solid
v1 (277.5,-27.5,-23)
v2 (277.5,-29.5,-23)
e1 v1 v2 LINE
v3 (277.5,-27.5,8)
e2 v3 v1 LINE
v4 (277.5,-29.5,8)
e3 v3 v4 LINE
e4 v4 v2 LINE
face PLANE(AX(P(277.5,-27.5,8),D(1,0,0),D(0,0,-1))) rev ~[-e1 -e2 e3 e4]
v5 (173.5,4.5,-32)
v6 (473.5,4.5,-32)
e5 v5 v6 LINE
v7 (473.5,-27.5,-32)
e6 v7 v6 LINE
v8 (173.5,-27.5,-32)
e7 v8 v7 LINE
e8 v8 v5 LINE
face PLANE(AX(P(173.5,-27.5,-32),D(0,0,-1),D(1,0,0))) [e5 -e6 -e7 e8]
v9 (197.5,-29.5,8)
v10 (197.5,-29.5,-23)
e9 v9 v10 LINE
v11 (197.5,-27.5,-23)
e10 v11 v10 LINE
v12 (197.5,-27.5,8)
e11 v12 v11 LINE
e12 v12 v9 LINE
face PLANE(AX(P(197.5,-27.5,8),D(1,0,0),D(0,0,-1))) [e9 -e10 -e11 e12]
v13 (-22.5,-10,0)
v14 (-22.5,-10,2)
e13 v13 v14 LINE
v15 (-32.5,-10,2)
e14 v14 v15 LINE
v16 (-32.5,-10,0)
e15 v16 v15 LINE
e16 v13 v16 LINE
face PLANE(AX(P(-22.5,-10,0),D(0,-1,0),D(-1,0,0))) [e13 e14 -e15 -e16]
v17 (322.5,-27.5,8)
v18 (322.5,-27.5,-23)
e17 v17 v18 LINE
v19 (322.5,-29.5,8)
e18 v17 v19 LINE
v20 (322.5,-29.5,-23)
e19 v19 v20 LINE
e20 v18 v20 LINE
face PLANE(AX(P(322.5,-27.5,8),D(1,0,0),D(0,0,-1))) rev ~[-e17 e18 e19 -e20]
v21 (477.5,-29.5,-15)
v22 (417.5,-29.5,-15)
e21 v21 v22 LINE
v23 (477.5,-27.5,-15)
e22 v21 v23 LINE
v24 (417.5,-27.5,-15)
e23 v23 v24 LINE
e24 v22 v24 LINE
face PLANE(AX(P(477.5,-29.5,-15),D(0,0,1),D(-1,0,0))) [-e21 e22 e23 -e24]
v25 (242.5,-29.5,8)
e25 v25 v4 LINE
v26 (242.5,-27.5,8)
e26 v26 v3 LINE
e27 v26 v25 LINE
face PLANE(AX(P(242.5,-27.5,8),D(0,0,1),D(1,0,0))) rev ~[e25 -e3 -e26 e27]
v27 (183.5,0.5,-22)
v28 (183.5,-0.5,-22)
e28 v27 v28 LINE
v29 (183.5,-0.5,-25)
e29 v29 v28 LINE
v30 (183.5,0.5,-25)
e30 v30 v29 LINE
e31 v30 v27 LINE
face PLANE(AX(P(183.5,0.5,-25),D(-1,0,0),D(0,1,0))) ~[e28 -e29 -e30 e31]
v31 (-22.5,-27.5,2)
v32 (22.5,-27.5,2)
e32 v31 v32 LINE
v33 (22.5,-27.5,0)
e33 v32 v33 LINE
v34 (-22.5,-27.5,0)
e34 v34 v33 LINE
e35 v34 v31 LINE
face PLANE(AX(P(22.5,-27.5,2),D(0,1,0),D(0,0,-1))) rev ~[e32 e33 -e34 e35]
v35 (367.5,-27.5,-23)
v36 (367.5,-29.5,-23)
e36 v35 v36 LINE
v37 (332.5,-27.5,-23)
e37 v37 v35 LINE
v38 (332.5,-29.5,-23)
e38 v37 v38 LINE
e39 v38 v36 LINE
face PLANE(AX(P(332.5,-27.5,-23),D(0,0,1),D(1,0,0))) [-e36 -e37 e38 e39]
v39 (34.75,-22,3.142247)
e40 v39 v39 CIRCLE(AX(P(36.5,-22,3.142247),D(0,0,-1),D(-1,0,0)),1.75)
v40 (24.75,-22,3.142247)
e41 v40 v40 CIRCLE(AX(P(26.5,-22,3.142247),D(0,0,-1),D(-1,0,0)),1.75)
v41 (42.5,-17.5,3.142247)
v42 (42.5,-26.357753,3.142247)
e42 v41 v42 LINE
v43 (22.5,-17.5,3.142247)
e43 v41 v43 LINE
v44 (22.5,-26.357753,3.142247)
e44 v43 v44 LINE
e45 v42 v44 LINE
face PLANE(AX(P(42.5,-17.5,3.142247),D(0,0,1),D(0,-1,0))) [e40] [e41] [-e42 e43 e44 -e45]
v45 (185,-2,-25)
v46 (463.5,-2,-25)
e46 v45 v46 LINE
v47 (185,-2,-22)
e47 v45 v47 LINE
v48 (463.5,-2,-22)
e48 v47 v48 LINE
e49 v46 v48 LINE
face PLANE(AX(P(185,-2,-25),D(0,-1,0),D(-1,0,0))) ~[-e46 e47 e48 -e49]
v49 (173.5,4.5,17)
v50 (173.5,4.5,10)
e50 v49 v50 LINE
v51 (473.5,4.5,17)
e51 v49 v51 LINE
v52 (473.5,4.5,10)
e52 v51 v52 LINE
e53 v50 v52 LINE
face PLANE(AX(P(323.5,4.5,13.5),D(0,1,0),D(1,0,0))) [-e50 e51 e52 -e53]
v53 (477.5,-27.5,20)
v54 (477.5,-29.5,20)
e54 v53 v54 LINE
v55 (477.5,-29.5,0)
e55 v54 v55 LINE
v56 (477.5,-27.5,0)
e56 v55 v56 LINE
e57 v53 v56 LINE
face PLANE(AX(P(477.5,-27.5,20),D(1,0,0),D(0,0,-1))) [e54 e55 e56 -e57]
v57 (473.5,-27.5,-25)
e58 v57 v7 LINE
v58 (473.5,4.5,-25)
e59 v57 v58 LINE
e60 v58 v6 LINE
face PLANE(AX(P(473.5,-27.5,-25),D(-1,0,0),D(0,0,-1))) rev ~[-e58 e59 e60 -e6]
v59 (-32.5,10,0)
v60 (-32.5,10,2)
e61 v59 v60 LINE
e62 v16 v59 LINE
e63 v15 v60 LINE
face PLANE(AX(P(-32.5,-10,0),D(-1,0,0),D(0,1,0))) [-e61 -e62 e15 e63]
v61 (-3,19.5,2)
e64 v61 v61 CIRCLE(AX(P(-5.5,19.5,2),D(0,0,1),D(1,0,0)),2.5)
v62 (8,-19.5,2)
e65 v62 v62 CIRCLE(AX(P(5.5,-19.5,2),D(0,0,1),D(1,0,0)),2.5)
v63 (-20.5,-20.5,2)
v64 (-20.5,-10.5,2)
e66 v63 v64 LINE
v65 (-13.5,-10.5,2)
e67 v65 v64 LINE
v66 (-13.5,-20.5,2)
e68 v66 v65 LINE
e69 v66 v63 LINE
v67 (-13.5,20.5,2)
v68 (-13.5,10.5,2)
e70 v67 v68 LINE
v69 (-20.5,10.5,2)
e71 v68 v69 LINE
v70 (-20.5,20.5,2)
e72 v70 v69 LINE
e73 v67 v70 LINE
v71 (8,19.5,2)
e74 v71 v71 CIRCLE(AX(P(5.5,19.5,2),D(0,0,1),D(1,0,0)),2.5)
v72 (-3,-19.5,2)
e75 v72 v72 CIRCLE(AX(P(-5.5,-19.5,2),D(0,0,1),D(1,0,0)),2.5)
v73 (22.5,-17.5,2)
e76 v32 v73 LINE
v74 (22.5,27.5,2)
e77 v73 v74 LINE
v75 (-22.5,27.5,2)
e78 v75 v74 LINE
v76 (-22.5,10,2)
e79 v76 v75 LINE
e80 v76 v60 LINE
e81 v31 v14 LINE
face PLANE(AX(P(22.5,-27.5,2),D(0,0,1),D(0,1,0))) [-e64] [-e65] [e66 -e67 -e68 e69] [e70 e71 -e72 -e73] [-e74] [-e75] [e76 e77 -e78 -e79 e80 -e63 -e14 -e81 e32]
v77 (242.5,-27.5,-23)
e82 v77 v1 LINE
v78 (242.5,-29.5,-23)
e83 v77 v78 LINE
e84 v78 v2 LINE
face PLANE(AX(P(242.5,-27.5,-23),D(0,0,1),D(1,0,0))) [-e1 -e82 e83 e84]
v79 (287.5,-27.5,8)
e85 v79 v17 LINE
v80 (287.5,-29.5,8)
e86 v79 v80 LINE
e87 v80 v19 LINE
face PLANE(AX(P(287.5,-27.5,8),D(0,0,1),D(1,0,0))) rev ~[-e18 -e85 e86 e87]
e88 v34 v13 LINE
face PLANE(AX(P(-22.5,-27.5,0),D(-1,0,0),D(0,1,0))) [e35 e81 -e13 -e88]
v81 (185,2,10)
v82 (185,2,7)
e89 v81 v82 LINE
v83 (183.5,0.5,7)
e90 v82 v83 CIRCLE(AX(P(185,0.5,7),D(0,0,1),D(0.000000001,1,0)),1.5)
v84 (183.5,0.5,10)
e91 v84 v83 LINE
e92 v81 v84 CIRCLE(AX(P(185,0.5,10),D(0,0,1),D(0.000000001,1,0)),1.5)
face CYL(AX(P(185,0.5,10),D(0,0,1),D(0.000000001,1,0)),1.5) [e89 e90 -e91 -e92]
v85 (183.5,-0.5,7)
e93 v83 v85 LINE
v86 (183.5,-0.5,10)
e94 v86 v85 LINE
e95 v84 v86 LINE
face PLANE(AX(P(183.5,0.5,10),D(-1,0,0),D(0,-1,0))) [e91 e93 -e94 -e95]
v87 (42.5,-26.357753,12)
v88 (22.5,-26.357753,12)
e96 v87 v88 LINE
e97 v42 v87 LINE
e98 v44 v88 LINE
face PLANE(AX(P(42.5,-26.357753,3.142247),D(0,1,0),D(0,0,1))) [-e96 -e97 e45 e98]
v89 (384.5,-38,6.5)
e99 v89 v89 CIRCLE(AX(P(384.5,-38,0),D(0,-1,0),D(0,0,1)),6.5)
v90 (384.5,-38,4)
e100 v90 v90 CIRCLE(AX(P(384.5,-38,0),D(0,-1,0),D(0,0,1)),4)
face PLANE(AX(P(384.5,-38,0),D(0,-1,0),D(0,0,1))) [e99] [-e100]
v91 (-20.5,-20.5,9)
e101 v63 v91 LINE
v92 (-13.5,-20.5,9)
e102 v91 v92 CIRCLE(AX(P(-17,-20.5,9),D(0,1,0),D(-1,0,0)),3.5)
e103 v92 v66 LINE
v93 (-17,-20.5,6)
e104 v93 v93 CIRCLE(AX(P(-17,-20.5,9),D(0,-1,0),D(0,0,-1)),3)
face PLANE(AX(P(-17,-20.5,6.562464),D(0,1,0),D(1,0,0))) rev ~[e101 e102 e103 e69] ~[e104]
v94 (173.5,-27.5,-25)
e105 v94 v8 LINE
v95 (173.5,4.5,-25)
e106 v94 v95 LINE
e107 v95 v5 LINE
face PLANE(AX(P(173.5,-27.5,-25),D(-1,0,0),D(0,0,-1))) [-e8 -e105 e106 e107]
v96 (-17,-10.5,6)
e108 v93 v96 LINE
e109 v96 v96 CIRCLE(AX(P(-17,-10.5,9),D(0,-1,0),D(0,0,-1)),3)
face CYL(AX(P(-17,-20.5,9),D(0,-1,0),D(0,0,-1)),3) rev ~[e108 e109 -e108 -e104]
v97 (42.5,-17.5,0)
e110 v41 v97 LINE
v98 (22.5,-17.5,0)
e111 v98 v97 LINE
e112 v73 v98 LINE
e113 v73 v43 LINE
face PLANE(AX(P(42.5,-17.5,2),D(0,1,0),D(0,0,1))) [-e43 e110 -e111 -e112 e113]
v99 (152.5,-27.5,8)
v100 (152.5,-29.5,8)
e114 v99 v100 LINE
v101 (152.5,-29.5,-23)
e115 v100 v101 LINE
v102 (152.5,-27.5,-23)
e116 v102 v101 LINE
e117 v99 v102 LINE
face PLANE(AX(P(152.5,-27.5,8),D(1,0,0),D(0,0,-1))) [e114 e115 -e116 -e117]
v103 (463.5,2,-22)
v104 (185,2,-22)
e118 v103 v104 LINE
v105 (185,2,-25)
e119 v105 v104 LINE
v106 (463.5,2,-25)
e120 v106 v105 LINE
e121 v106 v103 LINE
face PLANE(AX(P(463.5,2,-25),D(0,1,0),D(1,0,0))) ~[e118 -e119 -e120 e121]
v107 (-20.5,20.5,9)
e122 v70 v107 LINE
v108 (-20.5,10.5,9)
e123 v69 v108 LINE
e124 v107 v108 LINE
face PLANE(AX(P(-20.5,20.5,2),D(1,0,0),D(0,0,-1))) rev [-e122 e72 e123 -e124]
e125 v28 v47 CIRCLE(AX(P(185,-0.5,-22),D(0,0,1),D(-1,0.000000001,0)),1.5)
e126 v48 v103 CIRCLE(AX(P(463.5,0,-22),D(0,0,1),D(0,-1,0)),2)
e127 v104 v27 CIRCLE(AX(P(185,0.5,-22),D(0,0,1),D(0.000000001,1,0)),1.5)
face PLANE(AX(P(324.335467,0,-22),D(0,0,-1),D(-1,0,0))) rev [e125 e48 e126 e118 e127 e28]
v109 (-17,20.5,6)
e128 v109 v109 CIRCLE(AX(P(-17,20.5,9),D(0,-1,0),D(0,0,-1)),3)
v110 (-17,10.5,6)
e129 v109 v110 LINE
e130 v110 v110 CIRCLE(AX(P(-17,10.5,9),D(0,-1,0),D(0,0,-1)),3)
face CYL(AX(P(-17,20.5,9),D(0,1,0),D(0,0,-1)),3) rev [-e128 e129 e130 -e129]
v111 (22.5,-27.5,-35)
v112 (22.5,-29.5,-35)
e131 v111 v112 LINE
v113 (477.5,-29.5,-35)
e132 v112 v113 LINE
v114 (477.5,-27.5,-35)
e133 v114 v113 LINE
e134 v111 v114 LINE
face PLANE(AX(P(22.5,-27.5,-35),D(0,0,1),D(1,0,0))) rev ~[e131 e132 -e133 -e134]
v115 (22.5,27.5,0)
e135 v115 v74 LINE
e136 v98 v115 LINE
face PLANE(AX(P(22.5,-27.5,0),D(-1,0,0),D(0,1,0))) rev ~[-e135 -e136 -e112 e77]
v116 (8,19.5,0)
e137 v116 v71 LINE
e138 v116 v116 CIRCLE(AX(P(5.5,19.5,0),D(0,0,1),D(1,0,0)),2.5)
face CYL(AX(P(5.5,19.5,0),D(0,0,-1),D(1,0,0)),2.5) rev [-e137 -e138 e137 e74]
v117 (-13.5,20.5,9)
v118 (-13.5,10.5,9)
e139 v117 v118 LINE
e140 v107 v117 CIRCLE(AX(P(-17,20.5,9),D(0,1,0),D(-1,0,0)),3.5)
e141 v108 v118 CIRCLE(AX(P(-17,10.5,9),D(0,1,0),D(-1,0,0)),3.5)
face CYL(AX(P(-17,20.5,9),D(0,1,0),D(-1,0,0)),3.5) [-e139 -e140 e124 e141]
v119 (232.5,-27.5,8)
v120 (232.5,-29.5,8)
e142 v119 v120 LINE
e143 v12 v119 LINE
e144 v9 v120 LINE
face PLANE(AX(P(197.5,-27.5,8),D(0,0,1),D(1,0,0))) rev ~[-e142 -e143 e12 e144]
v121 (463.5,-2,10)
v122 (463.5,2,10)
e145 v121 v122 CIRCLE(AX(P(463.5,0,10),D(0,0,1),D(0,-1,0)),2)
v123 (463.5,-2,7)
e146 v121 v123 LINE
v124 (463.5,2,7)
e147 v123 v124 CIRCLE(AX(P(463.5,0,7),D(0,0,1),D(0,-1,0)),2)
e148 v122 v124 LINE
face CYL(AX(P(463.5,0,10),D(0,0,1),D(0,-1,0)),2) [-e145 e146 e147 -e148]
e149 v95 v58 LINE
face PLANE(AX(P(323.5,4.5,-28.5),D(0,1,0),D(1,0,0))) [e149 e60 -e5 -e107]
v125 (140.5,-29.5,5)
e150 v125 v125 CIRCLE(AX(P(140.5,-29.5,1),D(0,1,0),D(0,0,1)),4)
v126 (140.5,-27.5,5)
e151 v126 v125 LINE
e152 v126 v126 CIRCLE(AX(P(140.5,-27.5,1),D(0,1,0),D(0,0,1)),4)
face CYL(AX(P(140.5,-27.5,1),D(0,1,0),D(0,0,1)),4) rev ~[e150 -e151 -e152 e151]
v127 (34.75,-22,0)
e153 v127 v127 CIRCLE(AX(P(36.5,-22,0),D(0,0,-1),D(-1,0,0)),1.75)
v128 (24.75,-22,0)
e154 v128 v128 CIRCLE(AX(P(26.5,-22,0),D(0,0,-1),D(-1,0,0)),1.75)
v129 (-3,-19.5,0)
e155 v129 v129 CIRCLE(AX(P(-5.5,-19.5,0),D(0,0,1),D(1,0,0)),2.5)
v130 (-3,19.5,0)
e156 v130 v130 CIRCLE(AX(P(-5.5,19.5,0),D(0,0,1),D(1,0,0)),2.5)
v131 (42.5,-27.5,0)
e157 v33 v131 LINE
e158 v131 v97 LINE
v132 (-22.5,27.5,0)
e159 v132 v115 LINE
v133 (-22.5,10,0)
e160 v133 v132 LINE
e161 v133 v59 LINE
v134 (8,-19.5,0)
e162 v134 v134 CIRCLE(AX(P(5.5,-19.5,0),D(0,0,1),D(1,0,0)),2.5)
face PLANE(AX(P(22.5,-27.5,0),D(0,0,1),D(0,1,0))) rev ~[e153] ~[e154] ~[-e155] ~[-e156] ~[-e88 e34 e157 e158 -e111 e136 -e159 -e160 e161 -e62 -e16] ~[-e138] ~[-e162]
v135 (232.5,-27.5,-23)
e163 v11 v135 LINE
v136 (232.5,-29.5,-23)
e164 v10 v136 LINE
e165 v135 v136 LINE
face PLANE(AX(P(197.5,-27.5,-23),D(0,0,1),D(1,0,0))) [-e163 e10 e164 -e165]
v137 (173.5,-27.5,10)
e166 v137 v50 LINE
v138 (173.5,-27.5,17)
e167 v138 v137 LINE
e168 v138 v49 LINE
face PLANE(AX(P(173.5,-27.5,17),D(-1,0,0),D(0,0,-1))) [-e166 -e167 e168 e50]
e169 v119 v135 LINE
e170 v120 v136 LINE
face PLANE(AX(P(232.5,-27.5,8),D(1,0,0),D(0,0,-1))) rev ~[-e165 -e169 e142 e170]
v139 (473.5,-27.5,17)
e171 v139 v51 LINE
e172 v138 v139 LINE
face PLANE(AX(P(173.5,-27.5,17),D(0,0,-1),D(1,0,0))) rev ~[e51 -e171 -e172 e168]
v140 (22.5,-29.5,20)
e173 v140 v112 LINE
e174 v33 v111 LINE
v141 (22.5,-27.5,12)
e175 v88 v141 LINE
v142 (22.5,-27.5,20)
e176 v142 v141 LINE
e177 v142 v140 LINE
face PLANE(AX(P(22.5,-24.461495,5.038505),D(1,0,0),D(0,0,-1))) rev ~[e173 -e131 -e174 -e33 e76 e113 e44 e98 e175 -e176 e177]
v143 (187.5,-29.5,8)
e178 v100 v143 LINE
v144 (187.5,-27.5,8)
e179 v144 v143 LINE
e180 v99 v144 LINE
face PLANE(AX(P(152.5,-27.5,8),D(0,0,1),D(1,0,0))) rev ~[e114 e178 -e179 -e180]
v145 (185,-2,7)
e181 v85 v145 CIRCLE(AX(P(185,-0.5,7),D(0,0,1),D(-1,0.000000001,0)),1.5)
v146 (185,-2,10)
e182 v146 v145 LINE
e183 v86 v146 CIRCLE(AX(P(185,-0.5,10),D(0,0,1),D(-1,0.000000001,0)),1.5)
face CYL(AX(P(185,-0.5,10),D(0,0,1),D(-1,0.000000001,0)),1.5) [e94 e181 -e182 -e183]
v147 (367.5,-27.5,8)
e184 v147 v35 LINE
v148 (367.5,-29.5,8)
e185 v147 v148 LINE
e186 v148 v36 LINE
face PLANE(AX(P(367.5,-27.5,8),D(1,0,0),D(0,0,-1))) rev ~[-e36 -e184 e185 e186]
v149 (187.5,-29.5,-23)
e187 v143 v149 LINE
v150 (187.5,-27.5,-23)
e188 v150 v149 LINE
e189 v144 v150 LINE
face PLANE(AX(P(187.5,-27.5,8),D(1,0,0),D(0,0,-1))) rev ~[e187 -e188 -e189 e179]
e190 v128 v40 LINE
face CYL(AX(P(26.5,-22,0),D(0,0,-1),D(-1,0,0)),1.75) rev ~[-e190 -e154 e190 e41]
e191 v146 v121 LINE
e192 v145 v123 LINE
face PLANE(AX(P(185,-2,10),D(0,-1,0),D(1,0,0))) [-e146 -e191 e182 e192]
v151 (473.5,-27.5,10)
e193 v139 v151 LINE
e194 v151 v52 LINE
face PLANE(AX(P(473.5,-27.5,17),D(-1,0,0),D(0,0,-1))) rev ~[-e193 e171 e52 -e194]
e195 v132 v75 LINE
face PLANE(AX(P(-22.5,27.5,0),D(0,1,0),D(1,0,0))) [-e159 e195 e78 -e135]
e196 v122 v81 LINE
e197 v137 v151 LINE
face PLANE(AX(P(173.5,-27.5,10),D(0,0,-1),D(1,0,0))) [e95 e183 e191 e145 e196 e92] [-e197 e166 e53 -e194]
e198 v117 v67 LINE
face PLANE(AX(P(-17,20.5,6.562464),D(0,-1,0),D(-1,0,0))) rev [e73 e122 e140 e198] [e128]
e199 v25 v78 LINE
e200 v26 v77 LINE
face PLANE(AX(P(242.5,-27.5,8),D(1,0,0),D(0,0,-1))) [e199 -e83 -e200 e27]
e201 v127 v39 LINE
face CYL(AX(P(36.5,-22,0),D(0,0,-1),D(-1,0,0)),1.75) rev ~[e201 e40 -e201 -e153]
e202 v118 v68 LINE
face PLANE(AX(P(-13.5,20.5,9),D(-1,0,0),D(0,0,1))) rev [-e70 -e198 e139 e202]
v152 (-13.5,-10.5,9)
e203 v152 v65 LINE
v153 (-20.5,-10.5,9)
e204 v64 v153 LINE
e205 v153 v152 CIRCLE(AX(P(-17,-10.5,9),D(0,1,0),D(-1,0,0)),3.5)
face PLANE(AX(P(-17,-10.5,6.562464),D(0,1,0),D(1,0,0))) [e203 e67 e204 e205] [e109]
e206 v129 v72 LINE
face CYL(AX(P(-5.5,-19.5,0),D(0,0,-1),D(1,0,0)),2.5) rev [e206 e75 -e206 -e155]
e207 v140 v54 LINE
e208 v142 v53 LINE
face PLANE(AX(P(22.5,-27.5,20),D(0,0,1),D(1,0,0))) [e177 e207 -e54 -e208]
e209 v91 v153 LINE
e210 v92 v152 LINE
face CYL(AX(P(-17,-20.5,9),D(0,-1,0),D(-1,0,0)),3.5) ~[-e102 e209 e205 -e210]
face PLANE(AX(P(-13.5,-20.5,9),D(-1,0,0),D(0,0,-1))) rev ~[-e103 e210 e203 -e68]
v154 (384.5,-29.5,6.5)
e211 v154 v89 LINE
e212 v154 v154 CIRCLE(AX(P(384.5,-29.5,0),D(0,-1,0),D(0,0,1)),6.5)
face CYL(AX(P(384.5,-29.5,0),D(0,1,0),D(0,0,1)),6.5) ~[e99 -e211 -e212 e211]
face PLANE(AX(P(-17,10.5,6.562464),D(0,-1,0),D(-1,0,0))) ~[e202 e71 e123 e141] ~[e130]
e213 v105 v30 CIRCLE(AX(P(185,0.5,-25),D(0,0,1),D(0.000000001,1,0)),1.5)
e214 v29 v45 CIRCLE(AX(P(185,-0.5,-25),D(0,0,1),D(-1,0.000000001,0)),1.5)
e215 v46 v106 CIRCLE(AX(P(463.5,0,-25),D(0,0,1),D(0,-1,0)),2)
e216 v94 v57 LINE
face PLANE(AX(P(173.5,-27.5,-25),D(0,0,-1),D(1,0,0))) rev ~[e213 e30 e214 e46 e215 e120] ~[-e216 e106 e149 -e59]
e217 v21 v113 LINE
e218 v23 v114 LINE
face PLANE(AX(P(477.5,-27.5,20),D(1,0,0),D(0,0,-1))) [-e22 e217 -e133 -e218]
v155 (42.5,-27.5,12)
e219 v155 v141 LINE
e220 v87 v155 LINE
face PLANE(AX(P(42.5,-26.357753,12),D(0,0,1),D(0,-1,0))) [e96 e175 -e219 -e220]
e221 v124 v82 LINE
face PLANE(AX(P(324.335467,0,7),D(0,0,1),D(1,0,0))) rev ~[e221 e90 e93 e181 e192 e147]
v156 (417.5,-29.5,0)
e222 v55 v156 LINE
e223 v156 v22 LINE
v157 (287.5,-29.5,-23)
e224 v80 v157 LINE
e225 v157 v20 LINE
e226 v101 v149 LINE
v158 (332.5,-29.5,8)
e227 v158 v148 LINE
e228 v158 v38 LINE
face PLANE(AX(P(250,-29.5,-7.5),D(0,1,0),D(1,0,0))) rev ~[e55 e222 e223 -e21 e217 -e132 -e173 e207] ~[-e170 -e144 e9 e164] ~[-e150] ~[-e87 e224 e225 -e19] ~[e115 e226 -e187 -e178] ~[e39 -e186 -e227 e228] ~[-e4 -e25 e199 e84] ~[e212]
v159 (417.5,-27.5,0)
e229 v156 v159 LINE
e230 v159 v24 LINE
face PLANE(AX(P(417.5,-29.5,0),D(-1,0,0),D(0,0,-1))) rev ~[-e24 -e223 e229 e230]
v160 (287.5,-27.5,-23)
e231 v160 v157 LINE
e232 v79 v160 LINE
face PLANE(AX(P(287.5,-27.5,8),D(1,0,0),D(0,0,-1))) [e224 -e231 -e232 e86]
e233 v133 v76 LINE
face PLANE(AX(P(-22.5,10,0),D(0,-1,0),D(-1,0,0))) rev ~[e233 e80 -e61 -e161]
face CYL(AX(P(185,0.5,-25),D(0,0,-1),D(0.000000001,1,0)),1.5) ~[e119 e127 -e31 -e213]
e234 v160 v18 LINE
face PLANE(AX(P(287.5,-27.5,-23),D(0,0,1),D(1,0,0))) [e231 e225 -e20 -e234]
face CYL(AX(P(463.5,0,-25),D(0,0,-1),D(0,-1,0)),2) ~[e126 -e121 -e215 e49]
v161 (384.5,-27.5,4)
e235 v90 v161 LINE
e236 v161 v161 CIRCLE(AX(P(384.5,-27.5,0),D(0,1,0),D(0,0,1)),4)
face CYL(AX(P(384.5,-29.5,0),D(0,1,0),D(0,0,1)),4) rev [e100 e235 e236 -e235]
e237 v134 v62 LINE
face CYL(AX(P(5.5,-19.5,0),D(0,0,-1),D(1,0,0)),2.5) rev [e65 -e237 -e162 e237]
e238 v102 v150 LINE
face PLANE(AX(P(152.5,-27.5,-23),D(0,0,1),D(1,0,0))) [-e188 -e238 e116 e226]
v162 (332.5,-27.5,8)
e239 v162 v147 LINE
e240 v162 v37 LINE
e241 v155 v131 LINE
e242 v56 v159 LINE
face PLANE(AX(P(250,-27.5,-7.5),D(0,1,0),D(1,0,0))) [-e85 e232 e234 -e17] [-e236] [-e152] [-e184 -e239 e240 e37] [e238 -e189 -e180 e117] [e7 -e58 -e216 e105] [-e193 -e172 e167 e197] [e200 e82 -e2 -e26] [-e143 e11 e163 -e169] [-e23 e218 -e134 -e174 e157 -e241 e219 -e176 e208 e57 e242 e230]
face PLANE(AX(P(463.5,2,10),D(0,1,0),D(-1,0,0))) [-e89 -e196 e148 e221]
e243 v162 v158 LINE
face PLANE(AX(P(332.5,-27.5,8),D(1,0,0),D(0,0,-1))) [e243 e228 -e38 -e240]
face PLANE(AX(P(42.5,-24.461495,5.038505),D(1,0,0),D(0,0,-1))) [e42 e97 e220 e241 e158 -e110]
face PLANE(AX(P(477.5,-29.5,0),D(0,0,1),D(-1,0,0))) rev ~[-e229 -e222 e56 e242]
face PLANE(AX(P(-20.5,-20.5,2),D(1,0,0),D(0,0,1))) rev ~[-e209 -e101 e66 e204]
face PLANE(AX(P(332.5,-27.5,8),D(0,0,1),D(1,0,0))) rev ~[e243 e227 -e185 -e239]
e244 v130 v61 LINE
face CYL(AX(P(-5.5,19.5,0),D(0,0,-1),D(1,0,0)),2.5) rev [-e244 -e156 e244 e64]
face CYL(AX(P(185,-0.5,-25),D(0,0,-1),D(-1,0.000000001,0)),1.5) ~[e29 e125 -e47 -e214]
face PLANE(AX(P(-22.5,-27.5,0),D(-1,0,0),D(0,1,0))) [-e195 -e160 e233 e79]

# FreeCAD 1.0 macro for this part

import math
import FreeCAD as App
import Part
import Sketcher

V = App.Vector


def add_polygon(sketch, points):
    """Adds a closed chain of lines whose ends are joined by coincident constraints."""
    first, n = sketch.GeometryCount, len(points)
    for a, b in zip(points, points[1:] + points[:1]):
        sketch.addGeometry(Part.LineSegment(App.Vector(*a, 0), App.Vector(*b, 0)), False)
    for i in range(n):
        sketch.addConstraint(Sketcher.Constraint("Coincident", first + i, 2, first + (i + 1) % n, 1))

doc = App.newDocument("Part")
params = doc.addObject("Spreadsheet::Sheet", "Params")
for row, (alias, value) in enumerate([
    ("sketch1_diameter", "5 mm"),
    ("sketch1_width", "45 mm"),
    ("sketch1_height", "55 mm"),
    ("pad1_length", "2 mm"),
    ("sketch2_width", "10 mm"),
    ("sketch2_height", "20 mm"),
    ("pad2_length", "2 mm"),
    ("sketch3_diameter", "6 mm"),
    ("sketch3_radius", "3.5 mm"),
    ("pad3_length", "10 mm"),
    ("sketch4_width", "10 mm"),
    ("sketch4_height", "2 mm"),
    ("pad4_length", "20 mm"),
    ("sketch5_width", "455 mm"),
    ("sketch5_height", "55 mm"),
    ("pad5_length", "2 mm"),
    ("sketch6_width", "60 mm"),
    ("sketch6_height", "15 mm"),
    ("pocket1_length", "2 mm"),
    ("sketch7_width", "10 mm"),
    ("pad6_length", "20 mm"),
    ("sketch8_diameter", "3.5 mm"),
    ("sketch9_width", "300 mm"),
    ("sketch9_height", "7 mm"),
    ("pad7_length", "32 mm"),
    ("sketch10_radius", "2 mm"),
    ("sketch10_radius2", "1.5 mm"),
    ("sketch10_width", "278.5 mm"),
    ("pad8_length", "3 mm"),
    ("sketch11_diameter", "8 mm"),
    ("pocket3_length", "10 mm"),
    ("sketch12_width", "35 mm"),
    ("sketch12_height", "31 mm"),
    ("pocket4_length", "10 mm"),
    ("sketch13_diameter", "8 mm"),
    ("pocket5_length", "10 mm"),
    ("sketch14_diameter", "13 mm"),
    ("sketch14_diameter2", "8 mm"),
    ("pad9_length", "8.5 mm"),
], start=1):
    params.set(f"A{row}", alias)
    params.set(f"B{row}", "=" + value)
    params.setAlias(f"B{row}", alias)

body = doc.addObject("PartDesign::Body", "Body")

# Sketch on XY plane
sketch1 = doc.addObject("Sketcher::SketchObject", "Sketch")
body.addObject(sketch1)
sketch1.AttachmentSupport = (doc.XY_Plane, [""])
sketch1.MapMode = "FlatFace"
add_polygon(sketch1, [(-22.5, 27.5), (-22.5, -27.5), (22.5, -27.5), (22.5, 27.5)])  # lines 0-3
sketch1.addGeometry(Part.Circle(V(-5.5, -19.5, 0), V(0, 0, 1), 2.5), False)  # 4
sketch1.addGeometry(Part.Circle(V(5.5, -19.5, 0), V(0, 0, 1), 2.5), False)  # 5
sketch1.addGeometry(Part.Circle(V(-5.5, 19.5, 0), V(0, 0, 1), 2.5), False)  # 6
sketch1.addGeometry(Part.Circle(V(5.5, 19.5, 0), V(0, 0, 1), 2.5), False)  # 7
sketch1.addConstraint([
    Sketcher.Constraint("Vertical", 0),
    Sketcher.Constraint("Horizontal", 1),
    Sketcher.Constraint("Vertical", 2),
    Sketcher.Constraint("Horizontal", 3),
    Sketcher.Constraint("Equal", 4, 5),
    Sketcher.Constraint("Equal", 5, 6),
    Sketcher.Constraint("Equal", 6, 7),
    Sketcher.Constraint("Symmetric", 5, 3, 6, 3, -1, 1),
    Sketcher.Constraint("Symmetric", 4, 3, 7, 3, -1, 1),
    Sketcher.Constraint("Symmetric", 0, 2, 2, 2, -1, 1),
    Sketcher.Constraint("Symmetric", 4, 3, 5, 3, -2),
    Sketcher.Constraint("Diameter", 4, 5.0),
    Sketcher.Constraint("DistanceX", 1, 1, 1, 2, 45.0),
    Sketcher.Constraint("DistanceY", 0, 2, 0, 1, 55.0),
    Sketcher.Constraint("DistanceX", 4, 3, 5, 3, 11.0),
    Sketcher.Constraint("DistanceY", 4, 3, 6, 3, 39.0),
])
sketch1.setExpression("Constraints[15]", "Params.sketch1_diameter")
sketch1.setExpression("Constraints[16]", "Params.sketch1_width")
sketch1.setExpression("Constraints[17]", "Params.sketch1_height")
pad1 = doc.addObject("PartDesign::Pad", "Pad")
body.addObject(pad1)
pad1.Profile = sketch1
pad1.setExpression("Length", "Params.pad1_length")

# Sketch on XY plane
sketch2 = doc.addObject("Sketcher::SketchObject", "Sketch001")
body.addObject(sketch2)
sketch2.AttachmentSupport = (doc.XY_Plane, [""])
sketch2.MapMode = "FlatFace"
add_polygon(sketch2, [(-22, 10), (-22, -10), (-32, -10), (-32, 10)])  # lines 0-3
sketch2.addConstraint([
    Sketcher.Constraint("Vertical", 0),
    Sketcher.Constraint("Horizontal", 1),
    Sketcher.Constraint("Vertical", 2),
    Sketcher.Constraint("Horizontal", 3),
    Sketcher.Constraint("DistanceX", 1, 2, 1, 1, 10.0),
    Sketcher.Constraint("DistanceY", 0, 2, 0, 1, 20.0),
    Sketcher.Constraint("DistanceY", 0, 2, -1, 1, 10.0),
    Sketcher.Constraint("DistanceX", 0, 2, -1, 1, 22.5),
])
sketch2.setExpression("Constraints[8]", "Params.sketch2_width")
sketch2.setExpression("Constraints[9]", "Params.sketch2_height")
pad2 = doc.addObject("PartDesign::Pad", "Pad001")
body.addObject(pad2)
pad2.Profile = sketch2
pad2.setExpression("Length", "Params.pad2_length")

# Sketch on XZ plane
sketch3 = doc.addObject("Sketcher::SketchObject", "Sketch002")
body.addObject(sketch3)
sketch3.AttachmentSupport = (doc.XZ_Plane, [""])
sketch3.MapMode = "FlatFace"
sketch3.AttachmentOffset = App.Placement(V(0, 0, 20.5), App.Rotation())
sketch3.addGeometry([
    Part.LineSegment(V(-20.5, 2, 0), V(-13.5, 2, 0)),  # 0
    Part.LineSegment(V(-13.5, 2, 0), V(-13.5, 9, 0)),  # 1
    Part.ArcOfCircle(Part.Circle(V(-17, 9, 0), V(0, 0, 1), 3.5), math.radians(0), math.radians(180)),  # 2
    Part.LineSegment(V(-20.5, 9, 0), V(-20.5, 2, 0)),  # 3
    Part.Circle(V(-17, 9, 0), V(0, 0, 1), 3),  # 4
], False)
sketch3.addConstraint([
    Sketcher.Constraint("Coincident", 0, 2, 1, 1),
    Sketcher.Constraint("Tangent", 1, 2, 2, 1),
    Sketcher.Constraint("Tangent", 2, 2, 3, 1),
    Sketcher.Constraint("Coincident", 3, 2, 0, 1),
    Sketcher.Constraint("Horizontal", 0),
    Sketcher.Constraint("Vertical", 1),
    Sketcher.Constraint("Vertical", 3),
    Sketcher.Constraint("Coincident", 4, 3, 2, 3),
    Sketcher.Constraint("Equal", 0, 1),
    Sketcher.Constraint("Diameter", 4, 6.0),
    Sketcher.Constraint("Radius", 2, 3.5),
    Sketcher.Constraint("DistanceX", 2, 3, -1, 1, 17.0),
    Sketcher.Constraint("DistanceY", -1, 1, 2, 3, 9.0),
])
sketch3.setExpression("Constraints[9]", "Params.sketch3_diameter")
sketch3.setExpression("Constraints[10]", "Params.sketch3_radius")
pad3 = doc.addObject("PartDesign::Pad", "Pad002")
body.addObject(pad3)
pad3.Profile = sketch3
pad3.setExpression("Length", "Params.pad3_length")
pad3.Reversed = True
doc.recompute()

mirrored = doc.addObject("PartDesign::Mirrored", "Mirrored")
body.addObject(mirrored)
mirrored.Originals = [pad3]
mirrored.MirrorPlane = (doc.XZ_Plane, [""])
body.Tip = mirrored

# Sketch on YZ plane
sketch4 = doc.addObject("Sketcher::SketchObject", "Sketch003")
body.addObject(sketch4)
sketch4.AttachmentSupport = (doc.YZ_Plane, [""])
sketch4.MapMode = "FlatFace"
sketch4.AttachmentOffset = App.Placement(V(0, 0, 22.5), App.Rotation())
add_polygon(sketch4, [(-17.5, 2), (-27.5, 2), (-27.5, 0), (-17.5, 0)])  # lines 0-3
sketch4.addConstraint([
    Sketcher.Constraint("Horizontal", 0),
    Sketcher.Constraint("Vertical", 1),
    Sketcher.Constraint("Horizontal", 2),
    Sketcher.Constraint("Vertical", 3),
    Sketcher.Constraint("PointOnObject", 1, 2, -1),
    Sketcher.Constraint("DistanceX", 0, 2, 0, 1, 10.0),
    Sketcher.Constraint("DistanceY", 1, 2, 1, 1, 2.0),
    Sketcher.Constraint("DistanceX", 0, 2, -1, 1, 27.5),
])
sketch4.setExpression("Constraints[9]", "Params.sketch4_width")
sketch4.setExpression("Constraints[10]", "Params.sketch4_height")
pad4 = doc.addObject("PartDesign::Pad", "Pad003")
body.addObject(pad4)
pad4.Profile = sketch4
pad4.setExpression("Length", "Params.pad4_length")

# Sketch on XZ plane
sketch5 = doc.addObject("Sketcher::SketchObject", "Sketch004")
body.addObject(sketch5)
sketch5.AttachmentSupport = (doc.XZ_Plane, [""])
sketch5.MapMode = "FlatFace"
sketch5.AttachmentOffset = App.Placement(V(0, 0, 27.5), App.Rotation())
add_polygon(sketch5, [(22, -35), (22, 20), (478, 20), (478, -35)])  # lines 0-3
sketch5.addConstraint([
    Sketcher.Constraint("Vertical", 0),
    Sketcher.Constraint("Horizontal", 1),
    Sketcher.Constraint("Vertical", 2),
    Sketcher.Constraint("Horizontal", 3),
    Sketcher.Constraint("DistanceX", 1, 1, 1, 2, 455.0),
    Sketcher.Constraint("DistanceY", 0, 1, 0, 2, 55.0),
    Sketcher.Constraint("DistanceY", -1, 1, 0, 2, 20.0),
    Sketcher.Constraint("DistanceX", -1, 1, 0, 2, 22.5),
])
sketch5.setExpression("Constraints[8]", "Params.sketch5_width")
sketch5.setExpression("Constraints[9]", "Params.sketch5_height")
pad5 = doc.addObject("PartDesign::Pad", "Pad004")
body.addObject(pad5)
pad5.Profile = sketch5
pad5.setExpression("Length", "Params.pad5_length")

# Sketch on XZ plane
sketch6 = doc.addObject("Sketcher::SketchObject", "Sketch005")
body.addObject(sketch6)
sketch6.AttachmentSupport = (doc.XZ_Plane, [""])
sketch6.MapMode = "FlatFace"
sketch6.AttachmentOffset = App.Placement(V(0, 0, 29.5), App.Rotation())
add_polygon(sketch6, [(478, -15), (478, 0), (418, 0), (418, -15)])  # lines 0-3
sketch6.addConstraint([
    Sketcher.Constraint("Vertical", 0),
    Sketcher.Constraint("Horizontal", 1),
    Sketcher.Constraint("Vertical", 2),
    Sketcher.Constraint("Horizontal", 3),
    Sketcher.Constraint("PointOnObject", 0, 2, -1),
    Sketcher.Constraint("DistanceX", 1, 2, 1, 1, 60.0),
    Sketcher.Constraint("DistanceY", 0, 1, 0, 2, 15.0),
    Sketcher.Constraint("DistanceX", -1, 1, 0, 2, 477.5),
])
sketch6.setExpression("Constraints[9]", "Params.sketch6_width")
sketch6.setExpression("Constraints[10]", "Params.sketch6_height")
pocket1 = doc.addObject("PartDesign::Pocket", "Pocket")
body.addObject(pocket1)
pocket1.Profile = sketch6
pocket1.setExpression("Length", "Params.pocket1_length")

# Sketch on YZ plane
sketch7 = doc.addObject("Sketcher::SketchObject", "Sketch006")
body.addObject(sketch7)
sketch7.AttachmentSupport = (doc.YZ_Plane, [""])
sketch7.MapMode = "FlatFace"
sketch7.AttachmentOffset = App.Placement(V(0, 0, 42.5), App.Rotation())
add_polygon(sketch7, [(-17.5, 2), (-17.5, 3.1), (-26.4, 3.1), (-26.4, 12), (-27.5, 12), (-27.5, 2)])  # lines 0-5
sketch7.addConstraint([
    Sketcher.Constraint("Vertical", 0),
    Sketcher.Constraint("Horizontal", 1),
    Sketcher.Constraint("Vertical", 2),
    Sketcher.Constraint("Horizontal", 3),
    Sketcher.Constraint("Vertical", 4),
    Sketcher.Constraint("Horizontal", 5),
    Sketcher.Constraint("Equal", 3, 0),
    Sketcher.Constraint("Equal", 1, 2),
    Sketcher.Constraint("DistanceX", 5, 1, 5, 2, 10.0),
    Sketcher.Constraint("DistanceY", -1, 1, 2, 2, 12.0),
    Sketcher.Constraint("DistanceX", 0, 2, -1, 1, 17.5),
    Sketcher.Constraint("DistanceX", 1, 2, 1, 1, 8.857753),
])
sketch7.setExpression("Constraints[14]", "Params.sketch7_width")
pad6 = doc.addObject("PartDesign::Pad", "Pad005")
body.addObject(pad6)
pad6.Profile = sketch7
pad6.setExpression("Length", "Params.pad6_length")
pad6.Reversed = True

# Sketch on XY plane
sketch8 = doc.addObject("Sketcher::SketchObject", "Sketch007")
body.addObject(sketch8)
sketch8.AttachmentSupport = (doc.XY_Plane, [""])
sketch8.MapMode = "FlatFace"
sketch8.addGeometry([
    Part.Circle(V(26.5, -22, 0), V(0, 0, 1), 1.8),
    Part.Circle(V(36.5, -22, 0), V(0, 0, 1), 1.8),
], False)
sketch8.addConstraint([
    Sketcher.Constraint("Equal", 0, 1),
    Sketcher.Constraint("Horizontal", 0, 3, 1, 3),
    Sketcher.Constraint("Diameter", 0, 3.5),
    Sketcher.Constraint("DistanceY", 0, 3, -1, 1, 22.0),
    Sketcher.Constraint("DistanceX", 0, 3, 1, 3, 10.0),
    Sketcher.Constraint("DistanceX", -1, 1, 0, 3, 26.5),
])
sketch8.setExpression("Constraints[2]", "Params.sketch8_diameter")
pocket2 = doc.addObject("PartDesign::Pocket", "Pocket001")
body.addObject(pocket2)
pocket2.Profile = sketch8
pocket2.Type = "ThroughAll"
pocket2.Reversed = True

# Sketch on XZ plane
sketch9 = doc.addObject("Sketcher::SketchObject", "Sketch008")
body.addObject(sketch9)
sketch9.AttachmentSupport = (doc.XZ_Plane, [""])
sketch9.MapMode = "FlatFace"
sketch9.AttachmentOffset = App.Placement(V(0, 0, 27.5), App.Rotation())
add_polygon(sketch9, [(174, -32), (174, -25), (474, -25), (474, -32)])  # lines 0-3
add_polygon(sketch9, [(174, 10), (174, 17), (474, 17), (474, 10)])  # lines 4-7
sketch9.addConstraint([
    Sketcher.Constraint("Vertical", 0),
    Sketcher.Constraint("Horizontal", 1),
    Sketcher.Constraint("Vertical", 2),
    Sketcher.Constraint("Horizontal", 3),
    Sketcher.Constraint("Vertical", 4),
    Sketcher.Constraint("Horizontal", 5),
    Sketcher.Constraint("Vertical", 6),
    Sketcher.Constraint("Horizontal", 7),
    Sketcher.Constraint("Vertical", 3, 2, 4, 2),
    Sketcher.Constraint("Vertical", 2, 2, 5, 2),
    Sketcher.Constraint("Equal", 2, 4),
    Sketcher.Constraint("DistanceX", 1, 1, 1, 2, 300.0),
    Sketcher.Constraint("DistanceY", 0, 1, 0, 2, 7.0),
    Sketcher.Constraint("DistanceY", 0, 2, -1, 1, 25.0),
    Sketcher.Constraint("DistanceY", -1, 1, 4, 2, 17.0),
    Sketcher.Constraint("DistanceX", -1, 1, 0, 2, 173.5),
])
sketch9.setExpression("Constraints[19]", "Params.sketch9_width")
sketch9.setExpression("Constraints[20]", "Params.sketch9_height")
pad7 = doc.addObject("PartDesign::Pad", "Pad006")
body.addObject(pad7)
pad7.Profile = sketch9
pad7.setExpression("Length", "Params.pad7_length")
pad7.Reversed = True

# Sketch on XY plane
sketch10 = doc.addObject("Sketcher::SketchObject", "Sketch009")
body.addObject(sketch10)
sketch10.AttachmentSupport = (doc.XY_Plane, [""])
sketch10.MapMode = "FlatFace"
sketch10.AttachmentOffset = App.Placement(V(0, 0, 10), App.Rotation())
sketch10.addGeometry([
    Part.LineSegment(V(185, 2, 0), V(463.5, 2, 0)),  # 0
    Part.ArcOfCircle(Part.Circle(V(463.5, 0, 0), V(0, 0, 1), 2), math.radians(-90), math.radians(90)),  # 1
    Part.LineSegment(V(463.5, -2, 0), V(185, -2, 0)),  # 2
    Part.ArcOfCircle(Part.Circle(V(185, -0.5, 0), V(0, 0, 1), 1.5), math.radians(180), math.radians(270)),  # 3
    Part.LineSegment(V(183.5, -0.5, 0), V(183.5, 0.5, 0)),  # 4
    Part.ArcOfCircle(Part.Circle(V(185, 0.5, 0), V(0, 0, 1), 1.5), math.radians(90), math.radians(180)),  # 5
], False)
sketch10.addConstraint([
    Sketcher.Constraint("Tangent", 0, 2, 1, 2),
    Sketcher.Constraint("Tangent", 1, 1, 2, 1),
    Sketcher.Constraint("Tangent", 2, 2, 3, 2),
    Sketcher.Constraint("Tangent", 3, 1, 4, 1),
    Sketcher.Constraint("Tangent", 4, 2, 5, 2),
    Sketcher.Constraint("Tangent", 5, 1, 0, 1),
    Sketcher.Constraint("Horizontal", 0),
    Sketcher.Constraint("Horizontal", 2),
    Sketcher.Constraint("Vertical", 4),
    Sketcher.Constraint("Equal", 3, 5),
    Sketcher.Constraint("PointOnObject", 1, 3, -1),
    Sketcher.Constraint("Radius", 1, 2.0),
    Sketcher.Constraint("Radius", 3, 1.5),
    Sketcher.Constraint("DistanceX", 0, 1, 0, 2, 278.5),
    Sketcher.Constraint("DistanceX", -1, 1, 3, 3, 185.0),
])
sketch10.setExpression("Constraints[11]", "Params.sketch10_radius")
sketch10.setExpression("Constraints[12]", "Params.sketch10_radius2")
sketch10.setExpression("Constraints[13]", "Params.sketch10_width")
pad8 = doc.addObject("PartDesign::Pad", "Pad007")
body.addObject(pad8)
pad8.Profile = sketch10
pad8.setExpression("Length", "Params.pad8_length")
pad8.Reversed = True
doc.recompute()

datumplane = doc.addObject("PartDesign::Plane", "DatumPlane")
body.addObject(datumplane)
datumplane.AttachmentSupport = (doc.XY_Plane, [""])
datumplane.MapMode = "FlatFace"
datumplane.AttachmentOffset = App.Placement(V(0, 0, -7.5), App.Rotation())
mirrored2 = doc.addObject("PartDesign::Mirrored", "Mirrored001")
body.addObject(mirrored2)
mirrored2.Originals = [pad8]
mirrored2.MirrorPlane = (datumplane, [""])
body.Tip = mirrored2

# Sketch on XZ plane
sketch11 = doc.addObject("Sketcher::SketchObject", "Sketch010")
body.addObject(sketch11)
sketch11.AttachmentSupport = (doc.XZ_Plane, [""])
sketch11.MapMode = "FlatFace"
sketch11.AttachmentOffset = App.Placement(V(0, 0, 27.5), App.Rotation())
sketch11.addGeometry(Part.Circle(V(140.5, 1, 0), V(0, 0, 1), 4), False)
sketch11.addConstraint([
    Sketcher.Constraint("Diameter", 0, 8.0),
    Sketcher.Constraint("DistanceY", -1, 1, 0, 3, 1.0),
    Sketcher.Constraint("DistanceX", -1, 1, 0, 3, 140.5),
])
sketch11.setExpression("Constraints[0]", "Params.sketch11_diameter")
pocket3 = doc.addObject("PartDesign::Pocket", "Pocket002")
body.addObject(pocket3)
pocket3.Profile = sketch11
pocket3.setExpression("Length", "Params.pocket3_length")
pocket3.Reversed = True

# Sketch on XZ plane
sketch12 = doc.addObject("Sketcher::SketchObject", "Sketch011")
body.addObject(sketch12)
sketch12.AttachmentSupport = (doc.XZ_Plane, [""])
sketch12.MapMode = "FlatFace"
sketch12.AttachmentOffset = App.Placement(V(0, 0, 27.5), App.Rotation())
add_polygon(sketch12, [(152, -23), (152, 8), (188, 8), (188, -23)])  # lines 0-3
add_polygon(sketch12, [(198, -23), (198, 8), (232, 8), (232, -23)])  # lines 4-7
add_polygon(sketch12, [(242, -23), (242, 8), (278, 8), (278, -23)])  # lines 8-11
add_polygon(sketch12, [(288, -23), (288, 8), (322, 8), (322, -23)])  # lines 12-15
add_polygon(sketch12, [(332, -23), (332, 8), (368, 8), (368, -23)])  # lines 16-19
sketch12.addConstraint([
    Sketcher.Constraint("Vertical", 0),
    Sketcher.Constraint("Horizontal", 1),
    Sketcher.Constraint("Vertical", 2),
    Sketcher.Constraint("Horizontal", 3),
    Sketcher.Constraint("Vertical", 4),
    Sketcher.Constraint("Horizontal", 5),
    Sketcher.Constraint("Vertical", 6),
    Sketcher.Constraint("Horizontal", 7),
    Sketcher.Constraint("Vertical", 8),
    Sketcher.Constraint("Horizontal", 9),
    Sketcher.Constraint("Vertical", 10),
    Sketcher.Constraint("Horizontal", 11),
    Sketcher.Constraint("Vertical", 12),
    Sketcher.Constraint("Horizontal", 13),
    Sketcher.Constraint("Vertical", 14),
    Sketcher.Constraint("Horizontal", 15),
    Sketcher.Constraint("Vertical", 16),
    Sketcher.Constraint("Horizontal", 17),
    Sketcher.Constraint("Vertical", 18),
    Sketcher.Constraint("Horizontal", 19),
    Sketcher.Constraint("Horizontal", 1, 2, 4, 2),
    Sketcher.Constraint("Horizontal", 3, 2, 6, 2),
    Sketcher.Constraint("Horizontal", 5, 2, 8, 2),
    Sketcher.Constraint("Horizontal", 7, 2, 10, 2),
    Sketcher.Constraint("Horizontal", 9, 2, 12, 2),
    Sketcher.Constraint("Horizontal", 11, 2, 14, 2),
    Sketcher.Constraint("Horizontal", 13, 2, 16, 2),
    Sketcher.Constraint("Horizontal", 15, 2, 18, 2),
    Sketcher.Constraint("Equal", 3, 5),
    Sketcher.Constraint("Equal", 7, 9),
    Sketcher.Constraint("Equal", 11, 13),
    Sketcher.Constraint("Equal", 15, 17),
    Sketcher.Constraint("DistanceX", 1, 1, 1, 2, 35.0),
    Sketcher.Constraint("DistanceY", 0, 1, 0, 2, 31.0),
    Sketcher.Constraint("DistanceY", -1, 1, 0, 2, 8.0),
    Sketcher.Constraint("DistanceX", 1, 2, 4, 2, 10.0),
    Sketcher.Constraint("DistanceX", 5, 2, 8, 2, 10.0),
    Sketcher.Constraint("DistanceX", 9, 2, 12, 2, 10.0),
    Sketcher.Constraint("DistanceX", 13, 2, 16, 2, 10.0),
    Sketcher.Constraint("DistanceX", -1, 1, 0, 2, 152.5),
])
sketch12.setExpression("Constraints[52]", "Params.sketch12_width")
sketch12.setExpression("Constraints[53]", "Params.sketch12_height")
pocket4 = doc.addObject("PartDesign::Pocket", "Pocket003")
body.addObject(pocket4)
pocket4.Profile = sketch12
pocket4.setExpression("Length", "Params.pocket4_length")
pocket4.Reversed = True

# Sketch on XZ plane
sketch13 = doc.addObject("Sketcher::SketchObject", "Sketch012")
body.addObject(sketch13)
sketch13.AttachmentSupport = (doc.XZ_Plane, [""])
sketch13.MapMode = "FlatFace"
sketch13.AttachmentOffset = App.Placement(V(0, 0, 27.5), App.Rotation())
sketch13.addGeometry(Part.Circle(V(384.5, 0, 0), V(0, 0, 1), 4), False)
sketch13.addConstraint([
    Sketcher.Constraint("PointOnObject", 0, 3, -1),
    Sketcher.Constraint("Diameter", 0, 8.0),
    Sketcher.Constraint("DistanceX", -1, 1, 0, 3, 384.5),
])
sketch13.setExpression("Constraints[1]", "Params.sketch13_diameter")
pocket5 = doc.addObject("PartDesign::Pocket", "Pocket004")
body.addObject(pocket5)
pocket5.Profile = sketch13
pocket5.setExpression("Length", "Params.pocket5_length")
pocket5.Reversed = True

# Sketch on XZ plane
sketch14 = doc.addObject("Sketcher::SketchObject", "Sketch013")
body.addObject(sketch14)
sketch14.AttachmentSupport = (doc.XZ_Plane, [""])
sketch14.MapMode = "FlatFace"
sketch14.AttachmentOffset = App.Placement(V(0, 0, 29.5), App.Rotation())
sketch14.addGeometry([
    Part.Circle(V(384.5, 0, 0), V(0, 0, 1), 6.5),
    Part.Circle(V(384.5, 0, 0), V(0, 0, 1), 4),
], False)
sketch14.addConstraint([
    Sketcher.Constraint("Coincident", 1, 3, 0, 3),
    Sketcher.Constraint("PointOnObject", 0, 3, -1),
    Sketcher.Constraint("Diameter", 0, 13.0),
    Sketcher.Constraint("Diameter", 1, 8.0),
    Sketcher.Constraint("DistanceX", -1, 1, 0, 3, 384.5),
])
sketch14.setExpression("Constraints[2]", "Params.sketch14_diameter")
sketch14.setExpression("Constraints[3]", "Params.sketch14_diameter2")
pad9 = doc.addObject("PartDesign::Pad", "Pad008")
body.addObject(pad9)
pad9.Profile = sketch14
pad9.setExpression("Length", "Params.pad9_length")

doc.recompute()
